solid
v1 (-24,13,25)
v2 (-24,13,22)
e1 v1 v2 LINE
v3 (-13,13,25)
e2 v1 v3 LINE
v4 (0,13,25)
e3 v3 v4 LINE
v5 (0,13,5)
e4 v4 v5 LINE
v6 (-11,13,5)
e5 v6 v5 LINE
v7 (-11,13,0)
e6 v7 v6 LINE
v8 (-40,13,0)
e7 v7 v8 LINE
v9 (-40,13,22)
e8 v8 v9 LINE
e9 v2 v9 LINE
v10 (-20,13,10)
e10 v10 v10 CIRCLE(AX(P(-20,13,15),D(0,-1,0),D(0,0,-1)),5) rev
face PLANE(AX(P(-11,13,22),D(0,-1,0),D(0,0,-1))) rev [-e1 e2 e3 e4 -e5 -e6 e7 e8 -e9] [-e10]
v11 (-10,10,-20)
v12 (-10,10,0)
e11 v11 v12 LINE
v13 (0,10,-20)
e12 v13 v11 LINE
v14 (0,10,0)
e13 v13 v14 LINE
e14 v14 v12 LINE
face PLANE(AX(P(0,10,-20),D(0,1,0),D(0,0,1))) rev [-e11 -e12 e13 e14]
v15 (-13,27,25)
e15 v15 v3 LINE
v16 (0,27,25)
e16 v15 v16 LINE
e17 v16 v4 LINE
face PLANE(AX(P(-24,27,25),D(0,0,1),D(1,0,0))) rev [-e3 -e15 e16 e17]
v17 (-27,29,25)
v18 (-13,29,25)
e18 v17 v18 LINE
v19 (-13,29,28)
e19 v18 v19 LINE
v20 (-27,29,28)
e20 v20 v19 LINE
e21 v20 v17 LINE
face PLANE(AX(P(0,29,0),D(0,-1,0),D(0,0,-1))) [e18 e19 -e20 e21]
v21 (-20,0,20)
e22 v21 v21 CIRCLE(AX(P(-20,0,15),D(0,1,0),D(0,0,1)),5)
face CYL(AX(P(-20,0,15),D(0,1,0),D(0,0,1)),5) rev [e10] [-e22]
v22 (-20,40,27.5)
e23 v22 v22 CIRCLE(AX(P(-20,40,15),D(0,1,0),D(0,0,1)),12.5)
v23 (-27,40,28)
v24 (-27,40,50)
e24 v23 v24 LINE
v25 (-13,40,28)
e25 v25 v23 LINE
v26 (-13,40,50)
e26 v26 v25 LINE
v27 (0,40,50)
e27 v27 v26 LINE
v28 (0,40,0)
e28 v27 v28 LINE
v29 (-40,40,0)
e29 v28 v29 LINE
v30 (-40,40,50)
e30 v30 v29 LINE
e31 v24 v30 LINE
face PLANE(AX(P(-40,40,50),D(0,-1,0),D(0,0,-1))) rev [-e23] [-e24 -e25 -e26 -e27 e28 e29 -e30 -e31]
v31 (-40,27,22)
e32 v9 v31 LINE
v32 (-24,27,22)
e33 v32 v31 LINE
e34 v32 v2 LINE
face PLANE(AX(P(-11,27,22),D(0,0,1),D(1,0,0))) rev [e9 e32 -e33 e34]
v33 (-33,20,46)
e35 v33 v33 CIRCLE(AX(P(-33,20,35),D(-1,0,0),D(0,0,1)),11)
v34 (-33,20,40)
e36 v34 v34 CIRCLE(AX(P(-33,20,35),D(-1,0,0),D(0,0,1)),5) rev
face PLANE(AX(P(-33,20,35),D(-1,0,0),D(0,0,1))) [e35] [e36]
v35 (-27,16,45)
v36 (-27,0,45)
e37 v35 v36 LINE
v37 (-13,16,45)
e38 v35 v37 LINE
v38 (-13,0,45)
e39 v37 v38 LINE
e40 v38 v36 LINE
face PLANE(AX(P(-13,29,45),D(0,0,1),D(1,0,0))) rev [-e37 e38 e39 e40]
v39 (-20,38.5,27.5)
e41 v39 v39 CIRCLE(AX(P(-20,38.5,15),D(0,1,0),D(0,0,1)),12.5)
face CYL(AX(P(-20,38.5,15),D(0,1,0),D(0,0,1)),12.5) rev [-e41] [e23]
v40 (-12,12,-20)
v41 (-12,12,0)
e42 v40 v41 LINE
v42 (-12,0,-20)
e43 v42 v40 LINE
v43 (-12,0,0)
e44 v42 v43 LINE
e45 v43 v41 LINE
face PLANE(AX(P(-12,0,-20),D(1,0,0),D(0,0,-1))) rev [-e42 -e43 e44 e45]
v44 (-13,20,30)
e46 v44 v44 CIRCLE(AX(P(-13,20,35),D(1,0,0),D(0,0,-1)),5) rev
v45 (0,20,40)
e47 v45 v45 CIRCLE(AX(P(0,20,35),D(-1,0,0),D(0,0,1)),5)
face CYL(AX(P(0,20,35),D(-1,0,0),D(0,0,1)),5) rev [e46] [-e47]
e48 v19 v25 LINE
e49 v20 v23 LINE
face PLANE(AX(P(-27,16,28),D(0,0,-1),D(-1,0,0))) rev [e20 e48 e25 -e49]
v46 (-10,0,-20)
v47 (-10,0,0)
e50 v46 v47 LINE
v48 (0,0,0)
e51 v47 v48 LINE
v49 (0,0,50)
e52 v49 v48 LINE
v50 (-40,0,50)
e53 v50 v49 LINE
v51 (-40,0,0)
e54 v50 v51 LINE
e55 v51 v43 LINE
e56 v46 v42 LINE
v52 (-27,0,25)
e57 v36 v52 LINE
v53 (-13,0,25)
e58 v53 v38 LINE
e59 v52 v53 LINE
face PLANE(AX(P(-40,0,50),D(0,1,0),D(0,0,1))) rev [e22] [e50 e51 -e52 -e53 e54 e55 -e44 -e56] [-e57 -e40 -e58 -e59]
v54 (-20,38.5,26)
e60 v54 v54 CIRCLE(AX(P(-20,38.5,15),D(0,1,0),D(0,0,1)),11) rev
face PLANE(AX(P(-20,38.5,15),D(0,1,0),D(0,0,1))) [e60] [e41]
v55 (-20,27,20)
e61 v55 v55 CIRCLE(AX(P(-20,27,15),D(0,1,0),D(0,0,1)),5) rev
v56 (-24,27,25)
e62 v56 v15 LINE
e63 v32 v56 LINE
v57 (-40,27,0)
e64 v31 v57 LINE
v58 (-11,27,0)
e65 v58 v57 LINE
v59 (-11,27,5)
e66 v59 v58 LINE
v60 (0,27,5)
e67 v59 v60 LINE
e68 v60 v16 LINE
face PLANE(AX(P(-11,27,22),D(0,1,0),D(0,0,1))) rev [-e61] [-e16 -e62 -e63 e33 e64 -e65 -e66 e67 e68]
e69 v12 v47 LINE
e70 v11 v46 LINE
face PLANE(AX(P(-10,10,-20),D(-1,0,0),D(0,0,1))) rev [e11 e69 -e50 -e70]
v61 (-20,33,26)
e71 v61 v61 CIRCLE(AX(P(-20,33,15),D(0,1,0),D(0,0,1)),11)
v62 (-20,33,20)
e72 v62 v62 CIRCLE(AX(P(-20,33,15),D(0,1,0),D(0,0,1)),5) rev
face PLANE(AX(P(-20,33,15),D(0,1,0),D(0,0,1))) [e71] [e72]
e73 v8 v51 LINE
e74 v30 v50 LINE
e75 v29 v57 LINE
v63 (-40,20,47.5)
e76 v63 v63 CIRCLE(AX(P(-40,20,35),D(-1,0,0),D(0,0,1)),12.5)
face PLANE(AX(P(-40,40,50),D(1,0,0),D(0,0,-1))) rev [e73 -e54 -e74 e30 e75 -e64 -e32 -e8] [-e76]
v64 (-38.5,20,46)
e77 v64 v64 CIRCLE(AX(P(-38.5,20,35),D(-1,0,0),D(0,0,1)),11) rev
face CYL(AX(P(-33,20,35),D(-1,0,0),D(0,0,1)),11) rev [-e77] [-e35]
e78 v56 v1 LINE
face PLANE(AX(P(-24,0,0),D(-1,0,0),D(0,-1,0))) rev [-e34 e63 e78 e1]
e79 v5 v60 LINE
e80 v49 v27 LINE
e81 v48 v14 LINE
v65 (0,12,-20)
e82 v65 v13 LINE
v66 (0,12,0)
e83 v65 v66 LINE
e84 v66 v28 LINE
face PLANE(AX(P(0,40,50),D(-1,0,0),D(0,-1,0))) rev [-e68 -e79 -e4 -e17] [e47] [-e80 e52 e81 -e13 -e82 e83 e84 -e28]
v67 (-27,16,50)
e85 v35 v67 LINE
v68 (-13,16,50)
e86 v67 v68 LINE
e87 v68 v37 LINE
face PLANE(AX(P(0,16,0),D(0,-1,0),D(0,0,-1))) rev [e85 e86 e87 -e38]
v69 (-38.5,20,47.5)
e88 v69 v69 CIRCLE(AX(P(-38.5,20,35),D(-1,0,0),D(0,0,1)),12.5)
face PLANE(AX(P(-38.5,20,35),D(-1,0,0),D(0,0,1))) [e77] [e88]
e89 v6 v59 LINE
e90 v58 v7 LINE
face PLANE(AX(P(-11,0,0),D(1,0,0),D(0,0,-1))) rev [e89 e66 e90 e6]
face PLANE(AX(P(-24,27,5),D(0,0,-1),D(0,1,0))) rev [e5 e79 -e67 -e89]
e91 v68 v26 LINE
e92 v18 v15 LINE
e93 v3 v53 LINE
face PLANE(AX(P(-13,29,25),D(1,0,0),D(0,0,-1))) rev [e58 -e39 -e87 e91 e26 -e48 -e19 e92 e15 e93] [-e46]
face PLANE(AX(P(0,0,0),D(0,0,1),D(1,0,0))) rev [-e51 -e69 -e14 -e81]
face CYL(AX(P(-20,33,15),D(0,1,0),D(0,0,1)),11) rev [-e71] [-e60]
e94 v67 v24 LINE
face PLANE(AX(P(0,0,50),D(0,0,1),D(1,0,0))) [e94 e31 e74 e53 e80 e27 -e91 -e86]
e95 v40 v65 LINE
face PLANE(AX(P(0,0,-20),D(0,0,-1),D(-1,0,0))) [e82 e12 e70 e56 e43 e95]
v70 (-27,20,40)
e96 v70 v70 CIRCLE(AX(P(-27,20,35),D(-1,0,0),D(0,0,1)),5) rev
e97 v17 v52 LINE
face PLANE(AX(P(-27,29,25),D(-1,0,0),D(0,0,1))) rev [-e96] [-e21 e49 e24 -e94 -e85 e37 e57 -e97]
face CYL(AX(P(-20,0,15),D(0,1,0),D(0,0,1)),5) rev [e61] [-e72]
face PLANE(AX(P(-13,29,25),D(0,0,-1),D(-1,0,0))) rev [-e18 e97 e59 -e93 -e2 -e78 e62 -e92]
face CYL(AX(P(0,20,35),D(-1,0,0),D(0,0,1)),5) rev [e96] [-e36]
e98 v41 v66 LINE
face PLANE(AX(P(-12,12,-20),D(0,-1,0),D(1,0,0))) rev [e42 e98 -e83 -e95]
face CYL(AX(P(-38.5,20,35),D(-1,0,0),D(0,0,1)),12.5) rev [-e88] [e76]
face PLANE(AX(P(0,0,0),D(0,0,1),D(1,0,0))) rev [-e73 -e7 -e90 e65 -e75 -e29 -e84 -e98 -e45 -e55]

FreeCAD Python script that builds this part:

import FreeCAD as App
import Part
import Sketcher
from FreeCAD import Vector


def add_polygon(sketch, points):
    """Adds a closed chain of lines whose ends are joined by coincident constraints."""
    first, n = sketch.GeometryCount, len(points)
    for a, b in zip(points, points[1:] + points[:1]):
        sketch.addGeometry(Part.LineSegment(App.Vector(*a, 0), App.Vector(*b, 0)), False)
    for i in range(n):
        sketch.addConstraint(Sketcher.Constraint("Coincident", first + i, 2, first + (i + 1) % n, 1))

doc = App.newDocument("Part")
body = doc.addObject("PartDesign::Body", "Body")

# Sketch on XY plane
sketch1 = body.newObject("Sketcher::SketchObject", "Sketch")
sketch1.AttachmentSupport = (doc.getObject("XY_Plane"), [""])
sketch1.MapMode = "FlatFace"
add_polygon(sketch1, [(-40, 40), (-40, 0), (0, 0), (0, 40)])  # lines 0-3
sketch1.addConstraint(Sketcher.Constraint("Vertical", 0))
sketch1.addConstraint(Sketcher.Constraint("Horizontal", 1))
sketch1.addConstraint(Sketcher.Constraint("Vertical", 2))
sketch1.addConstraint(Sketcher.Constraint("Horizontal", 3))
sketch1.addConstraint(Sketcher.Constraint("Coincident", 1, 2, -1, 1))
sketch1.addConstraint(Sketcher.Constraint("Equal", 3, 0))
sketch1.addConstraint(Sketcher.Constraint("DistanceX", 1, 1, 1, 2, 40.0))
pad1 = body.newObject("PartDesign::Pad", "Pad")
pad1.Profile = sketch1
pad1.Length = 50

# Sketch on XZ plane
sketch2 = body.newObject("Sketcher::SketchObject", "Sketch001")
sketch2.AttachmentSupport = (doc.getObject("XZ_Plane"), [""])
sketch2.MapMode = "FlatFace"
sketch2.AttachmentOffset = App.Placement(Vector(0, 0, -40), App.Rotation())
sketch2.addGeometry(Part.Circle(Vector(-20, 15, 0), Vector(0, 0, 1), 5), False)
sketch2.addConstraint(Sketcher.Constraint("Diameter", 0, 10.0))
sketch2.addConstraint(Sketcher.Constraint("DistanceX", 0, 3, -1, 1, 20.0))
sketch2.addConstraint(Sketcher.Constraint("DistanceY", -1, 1, 0, 3, 15.0))
pocket1 = body.newObject("PartDesign::Pocket", "Pocket")
pocket1.Profile = sketch2
pocket1.Type = "ThroughAll"
pocket1.Reversed = True

# Sketch on YZ plane
sketch3 = body.newObject("Sketcher::SketchObject", "Sketch002")
sketch3.AttachmentSupport = (doc.getObject("YZ_Plane"), [""])
sketch3.MapMode = "FlatFace"
sketch3.AttachmentOffset = App.Placement(Vector(0, 0, -40), App.Rotation())
sketch3.addGeometry(Part.Circle(Vector(20, 35, 0), Vector(0, 0, 1), 5), False)
sketch3.addConstraint(Sketcher.Constraint("Diameter", 0, 10.0))
sketch3.addConstraint(Sketcher.Constraint("DistanceX", -1, 1, 0, 3, 20.0))
sketch3.addConstraint(Sketcher.Constraint("DistanceY", -1, 1, 0, 3, 35.0))
pocket2 = body.newObject("PartDesign::Pocket", "Pocket001")
pocket2.Profile = sketch3
pocket2.Type = "ThroughAll"
pocket2.Reversed = True

# Sketch on YZ plane
sketch4 = body.newObject("Sketcher::SketchObject", "Sketch003")
sketch4.AttachmentSupport = (doc.getObject("YZ_Plane"), [""])
sketch4.MapMode = "FlatFace"
sketch4.AttachmentOffset = App.Placement(Vector(0, 0, -40), App.Rotation())
add_polygon(sketch4, [(27, 0), (13, 0), (13, 22), (27, 22)])  # lines 0-3
sketch4.addConstraint(Sketcher.Constraint("Horizontal", 0))
sketch4.addConstraint(Sketcher.Constraint("Vertical", 1))
sketch4.addConstraint(Sketcher.Constraint("Horizontal", 2))
sketch4.addConstraint(Sketcher.Constraint("Vertical", 3))
sketch4.addConstraint(Sketcher.Constraint("PointOnObject", 0, 2, -1))
sketch4.addConstraint(Sketcher.Constraint("DistanceX", 0, 2, 0, 1, 14.0))
sketch4.addConstraint(Sketcher.Constraint("DistanceY", 1, 1, 1, 2, 22.0))
sketch4.addConstraint(Sketcher.Constraint("DistanceX", -1, 1, 0, 2, 13.0))
pocket3 = body.newObject("PartDesign::Pocket", "Pocket002")
pocket3.Profile = sketch4
pocket3.Length = 29
pocket3.Reversed = True

# Sketch on XZ plane
sketch5 = body.newObject("Sketcher::SketchObject", "Sketch004")
sketch5.AttachmentSupport = (doc.getObject("XZ_Plane"), [""])
sketch5.MapMode = "FlatFace"
add_polygon(sketch5, [(-27, 45), (-27, 25), (-13, 25), (-13, 45)])  # lines 0-3
sketch5.addConstraint(Sketcher.Constraint("Vertical", 0))
sketch5.addConstraint(Sketcher.Constraint("Horizontal", 1))
sketch5.addConstraint(Sketcher.Constraint("Vertical", 2))
sketch5.addConstraint(Sketcher.Constraint("Horizontal", 3))
sketch5.addConstraint(Sketcher.Constraint("DistanceX", 1, 1, 1, 2, 14.0))
sketch5.addConstraint(Sketcher.Constraint("DistanceY", 0, 2, 0, 1, 20.0))
sketch5.addConstraint(Sketcher.Constraint("DistanceX", 0, 2, -1, 1, 27.0))
sketch5.addConstraint(Sketcher.Constraint("DistanceY", -1, 1, 0, 2, 25.0))
pocket4 = body.newObject("PartDesign::Pocket", "Pocket003")
pocket4.Profile = sketch5
pocket4.Length = 29

# Sketch on YZ plane
sketch6 = body.newObject("Sketcher::SketchObject", "Sketch005")
sketch6.AttachmentSupport = (doc.getObject("YZ_Plane"), [""])
sketch6.MapMode = "FlatFace"
add_polygon(sketch6, [(27, 25), (13, 25), (13, 5), (27, 5)])  # lines 0-3
sketch6.addConstraint(Sketcher.Constraint("Horizontal", 0))
sketch6.addConstraint(Sketcher.Constraint("Vertical", 1))
sketch6.addConstraint(Sketcher.Constraint("Horizontal", 2))
sketch6.addConstraint(Sketcher.Constraint("Vertical", 3))
sketch6.addConstraint(Sketcher.Constraint("DistanceX", 0, 2, 0, 1, 14.0))
sketch6.addConstraint(Sketcher.Constraint("DistanceY", 1, 2, 1, 1, 20.0))
sketch6.addConstraint(Sketcher.Constraint("DistanceX", -1, 1, 0, 2, 13.0))
sketch6.addConstraint(Sketcher.Constraint("DistanceY", -1, 1, 0, 2, 25.0))
pocket5 = body.newObject("PartDesign::Pocket", "Pocket004")
pocket5.Profile = sketch6
pocket5.Length = 24

# Sketch on XZ plane
sketch7 = body.newObject("Sketcher::SketchObject", "Sketch006")
sketch7.AttachmentSupport = (doc.getObject("XZ_Plane"), [""])
sketch7.MapMode = "FlatFace"
sketch7.AttachmentOffset = App.Placement(Vector(0, 0, -40), App.Rotation())
add_polygon(sketch7, [(-27, 28), (-27, 50), (-13, 50), (-13, 28)])  # lines 0-3
sketch7.addConstraint(Sketcher.Constraint("Vertical", 0))
sketch7.addConstraint(Sketcher.Constraint("Horizontal", 1))
sketch7.addConstraint(Sketcher.Constraint("Vertical", 2))
sketch7.addConstraint(Sketcher.Constraint("Horizontal", 3))
sketch7.addConstraint(Sketcher.Constraint("DistanceX", 1, 1, 1, 2, 14.0))
sketch7.addConstraint(Sketcher.Constraint("DistanceY", 0, 1, 0, 2, 22.0))
sketch7.addConstraint(Sketcher.Constraint("DistanceX", 0, 2, -1, 1, 27.0))
sketch7.addConstraint(Sketcher.Constraint("DistanceY", -1, 1, 0, 2, 50.0))
pocket6 = body.newObject("PartDesign::Pocket", "Pocket005")
pocket6.Profile = sketch7
pocket6.Length = 24
pocket6.Reversed = True

# Sketch on XZ plane
sketch8 = body.newObject("Sketcher::SketchObject", "Sketch007")
sketch8.AttachmentSupport = (doc.getObject("XZ_Plane"), [""])
sketch8.MapMode = "FlatFace"
sketch8.AttachmentOffset = App.Placement(Vector(0, 0, -40), App.Rotation())
sketch8.addGeometry(Part.Circle(Vector(-20, 15, 0), Vector(0, 0, 1), 11), False)
sketch8.addConstraint(Sketcher.Constraint("Diameter", 0, 22.0))
sketch8.addConstraint(Sketcher.Constraint("DistanceX", 0, 3, -1, 1, 20.0))
sketch8.addConstraint(Sketcher.Constraint("DistanceY", -1, 1, 0, 3, 15.0))
pocket7 = body.newObject("PartDesign::Pocket", "Pocket006")
pocket7.Profile = sketch8
pocket7.Length = 7
pocket7.Reversed = True

# Sketch on XZ plane
sketch9 = body.newObject("Sketcher::SketchObject", "Sketch008")
sketch9.AttachmentSupport = (doc.getObject("XZ_Plane"), [""])
sketch9.MapMode = "FlatFace"
sketch9.AttachmentOffset = App.Placement(Vector(0, 0, -40), App.Rotation())
sketch9.addGeometry(Part.Circle(Vector(-20, 15, 0), Vector(0, 0, 1), 12.5), False)
sketch9.addConstraint(Sketcher.Constraint("Diameter", 0, 25.0))
sketch9.addConstraint(Sketcher.Constraint("DistanceX", 0, 3, -1, 1, 20.0))
sketch9.addConstraint(Sketcher.Constraint("DistanceY", -1, 1, 0, 3, 15.0))
pocket8 = body.newObject("PartDesign::Pocket", "Pocket007")
pocket8.Profile = sketch9
pocket8.Length = 1.5
pocket8.Reversed = True

# Sketch on YZ plane
sketch10 = body.newObject("Sketcher::SketchObject", "Sketch009")
sketch10.AttachmentSupport = (doc.getObject("YZ_Plane"), [""])
sketch10.MapMode = "FlatFace"
sketch10.AttachmentOffset = App.Placement(Vector(0, 0, -40), App.Rotation())
sketch10.addGeometry(Part.Circle(Vector(20, 35, 0), Vector(0, 0, 1), 11), False)
sketch10.addConstraint(Sketcher.Constraint("Diameter", 0, 22.0))
sketch10.addConstraint(Sketcher.Constraint("DistanceX", -1, 1, 0, 3, 20.0))
sketch10.addConstraint(Sketcher.Constraint("DistanceY", -1, 1, 0, 3, 35.0))
pocket9 = body.newObject("PartDesign::Pocket", "Pocket008")
pocket9.Profile = sketch10
pocket9.Length = 7
pocket9.Reversed = True

# Sketch on YZ plane
sketch11 = body.newObject("Sketcher::SketchObject", "Sketch010")
sketch11.AttachmentSupport = (doc.getObject("YZ_Plane"), [""])
sketch11.MapMode = "FlatFace"
sketch11.AttachmentOffset = App.Placement(Vector(0, 0, -40), App.Rotation())
sketch11.addGeometry(Part.Circle(Vector(20, 35, 0), Vector(0, 0, 1), 12.5), False)
sketch11.addConstraint(Sketcher.Constraint("Diameter", 0, 25.0))
sketch11.addConstraint(Sketcher.Constraint("DistanceX", -1, 1, 0, 3, 20.0))
sketch11.addConstraint(Sketcher.Constraint("DistanceY", -1, 1, 0, 3, 35.0))
pocket10 = body.newObject("PartDesign::Pocket", "Pocket009")
pocket10.Profile = sketch11
pocket10.Length = 1.5
pocket10.Reversed = True

# Sketch on XY plane
sketch12 = body.newObject("Sketcher::SketchObject", "Sketch011")
sketch12.AttachmentSupport = (doc.getObject("XY_Plane"), [""])
sketch12.MapMode = "FlatFace"
add_polygon(sketch12, [(-12, 0), (-12, 12), (0, 12), (0, 10), (-10, 10), (-10, 0)])  # lines 0-5
sketch12.addConstraint(Sketcher.Constraint("Vertical", 0))
sketch12.addConstraint(Sketcher.Constraint("Horizontal", 1))
sketch12.addConstraint(Sketcher.Constraint("Vertical", 2))
sketch12.addConstraint(Sketcher.Constraint("Horizontal", 3))
sketch12.addConstraint(Sketcher.Constraint("Vertical", 4))
sketch12.addConstraint(Sketcher.Constraint("Horizontal", 5))
sketch12.addConstraint(Sketcher.Constraint("PointOnObject", 1, 2, -2))
sketch12.addConstraint(Sketcher.Constraint("PointOnObject", 4, 2, -1))
sketch12.addConstraint(Sketcher.Constraint("Equal", 1, 0))
sketch12.addConstraint(Sketcher.Constraint("Equal", 5, 2))
sketch12.addConstraint(Sketcher.Constraint("DistanceX", 1, 1, 1, 2, 12.0))
sketch12.addConstraint(Sketcher.Constraint("DistanceX", 3, 2, 3, 1, 10.0))
pad2 = body.newObject("PartDesign::Pad", "Pad001")
pad2.Profile = sketch12
pad2.Length = 20
pad2.Reversed = True

doc.recompute()
